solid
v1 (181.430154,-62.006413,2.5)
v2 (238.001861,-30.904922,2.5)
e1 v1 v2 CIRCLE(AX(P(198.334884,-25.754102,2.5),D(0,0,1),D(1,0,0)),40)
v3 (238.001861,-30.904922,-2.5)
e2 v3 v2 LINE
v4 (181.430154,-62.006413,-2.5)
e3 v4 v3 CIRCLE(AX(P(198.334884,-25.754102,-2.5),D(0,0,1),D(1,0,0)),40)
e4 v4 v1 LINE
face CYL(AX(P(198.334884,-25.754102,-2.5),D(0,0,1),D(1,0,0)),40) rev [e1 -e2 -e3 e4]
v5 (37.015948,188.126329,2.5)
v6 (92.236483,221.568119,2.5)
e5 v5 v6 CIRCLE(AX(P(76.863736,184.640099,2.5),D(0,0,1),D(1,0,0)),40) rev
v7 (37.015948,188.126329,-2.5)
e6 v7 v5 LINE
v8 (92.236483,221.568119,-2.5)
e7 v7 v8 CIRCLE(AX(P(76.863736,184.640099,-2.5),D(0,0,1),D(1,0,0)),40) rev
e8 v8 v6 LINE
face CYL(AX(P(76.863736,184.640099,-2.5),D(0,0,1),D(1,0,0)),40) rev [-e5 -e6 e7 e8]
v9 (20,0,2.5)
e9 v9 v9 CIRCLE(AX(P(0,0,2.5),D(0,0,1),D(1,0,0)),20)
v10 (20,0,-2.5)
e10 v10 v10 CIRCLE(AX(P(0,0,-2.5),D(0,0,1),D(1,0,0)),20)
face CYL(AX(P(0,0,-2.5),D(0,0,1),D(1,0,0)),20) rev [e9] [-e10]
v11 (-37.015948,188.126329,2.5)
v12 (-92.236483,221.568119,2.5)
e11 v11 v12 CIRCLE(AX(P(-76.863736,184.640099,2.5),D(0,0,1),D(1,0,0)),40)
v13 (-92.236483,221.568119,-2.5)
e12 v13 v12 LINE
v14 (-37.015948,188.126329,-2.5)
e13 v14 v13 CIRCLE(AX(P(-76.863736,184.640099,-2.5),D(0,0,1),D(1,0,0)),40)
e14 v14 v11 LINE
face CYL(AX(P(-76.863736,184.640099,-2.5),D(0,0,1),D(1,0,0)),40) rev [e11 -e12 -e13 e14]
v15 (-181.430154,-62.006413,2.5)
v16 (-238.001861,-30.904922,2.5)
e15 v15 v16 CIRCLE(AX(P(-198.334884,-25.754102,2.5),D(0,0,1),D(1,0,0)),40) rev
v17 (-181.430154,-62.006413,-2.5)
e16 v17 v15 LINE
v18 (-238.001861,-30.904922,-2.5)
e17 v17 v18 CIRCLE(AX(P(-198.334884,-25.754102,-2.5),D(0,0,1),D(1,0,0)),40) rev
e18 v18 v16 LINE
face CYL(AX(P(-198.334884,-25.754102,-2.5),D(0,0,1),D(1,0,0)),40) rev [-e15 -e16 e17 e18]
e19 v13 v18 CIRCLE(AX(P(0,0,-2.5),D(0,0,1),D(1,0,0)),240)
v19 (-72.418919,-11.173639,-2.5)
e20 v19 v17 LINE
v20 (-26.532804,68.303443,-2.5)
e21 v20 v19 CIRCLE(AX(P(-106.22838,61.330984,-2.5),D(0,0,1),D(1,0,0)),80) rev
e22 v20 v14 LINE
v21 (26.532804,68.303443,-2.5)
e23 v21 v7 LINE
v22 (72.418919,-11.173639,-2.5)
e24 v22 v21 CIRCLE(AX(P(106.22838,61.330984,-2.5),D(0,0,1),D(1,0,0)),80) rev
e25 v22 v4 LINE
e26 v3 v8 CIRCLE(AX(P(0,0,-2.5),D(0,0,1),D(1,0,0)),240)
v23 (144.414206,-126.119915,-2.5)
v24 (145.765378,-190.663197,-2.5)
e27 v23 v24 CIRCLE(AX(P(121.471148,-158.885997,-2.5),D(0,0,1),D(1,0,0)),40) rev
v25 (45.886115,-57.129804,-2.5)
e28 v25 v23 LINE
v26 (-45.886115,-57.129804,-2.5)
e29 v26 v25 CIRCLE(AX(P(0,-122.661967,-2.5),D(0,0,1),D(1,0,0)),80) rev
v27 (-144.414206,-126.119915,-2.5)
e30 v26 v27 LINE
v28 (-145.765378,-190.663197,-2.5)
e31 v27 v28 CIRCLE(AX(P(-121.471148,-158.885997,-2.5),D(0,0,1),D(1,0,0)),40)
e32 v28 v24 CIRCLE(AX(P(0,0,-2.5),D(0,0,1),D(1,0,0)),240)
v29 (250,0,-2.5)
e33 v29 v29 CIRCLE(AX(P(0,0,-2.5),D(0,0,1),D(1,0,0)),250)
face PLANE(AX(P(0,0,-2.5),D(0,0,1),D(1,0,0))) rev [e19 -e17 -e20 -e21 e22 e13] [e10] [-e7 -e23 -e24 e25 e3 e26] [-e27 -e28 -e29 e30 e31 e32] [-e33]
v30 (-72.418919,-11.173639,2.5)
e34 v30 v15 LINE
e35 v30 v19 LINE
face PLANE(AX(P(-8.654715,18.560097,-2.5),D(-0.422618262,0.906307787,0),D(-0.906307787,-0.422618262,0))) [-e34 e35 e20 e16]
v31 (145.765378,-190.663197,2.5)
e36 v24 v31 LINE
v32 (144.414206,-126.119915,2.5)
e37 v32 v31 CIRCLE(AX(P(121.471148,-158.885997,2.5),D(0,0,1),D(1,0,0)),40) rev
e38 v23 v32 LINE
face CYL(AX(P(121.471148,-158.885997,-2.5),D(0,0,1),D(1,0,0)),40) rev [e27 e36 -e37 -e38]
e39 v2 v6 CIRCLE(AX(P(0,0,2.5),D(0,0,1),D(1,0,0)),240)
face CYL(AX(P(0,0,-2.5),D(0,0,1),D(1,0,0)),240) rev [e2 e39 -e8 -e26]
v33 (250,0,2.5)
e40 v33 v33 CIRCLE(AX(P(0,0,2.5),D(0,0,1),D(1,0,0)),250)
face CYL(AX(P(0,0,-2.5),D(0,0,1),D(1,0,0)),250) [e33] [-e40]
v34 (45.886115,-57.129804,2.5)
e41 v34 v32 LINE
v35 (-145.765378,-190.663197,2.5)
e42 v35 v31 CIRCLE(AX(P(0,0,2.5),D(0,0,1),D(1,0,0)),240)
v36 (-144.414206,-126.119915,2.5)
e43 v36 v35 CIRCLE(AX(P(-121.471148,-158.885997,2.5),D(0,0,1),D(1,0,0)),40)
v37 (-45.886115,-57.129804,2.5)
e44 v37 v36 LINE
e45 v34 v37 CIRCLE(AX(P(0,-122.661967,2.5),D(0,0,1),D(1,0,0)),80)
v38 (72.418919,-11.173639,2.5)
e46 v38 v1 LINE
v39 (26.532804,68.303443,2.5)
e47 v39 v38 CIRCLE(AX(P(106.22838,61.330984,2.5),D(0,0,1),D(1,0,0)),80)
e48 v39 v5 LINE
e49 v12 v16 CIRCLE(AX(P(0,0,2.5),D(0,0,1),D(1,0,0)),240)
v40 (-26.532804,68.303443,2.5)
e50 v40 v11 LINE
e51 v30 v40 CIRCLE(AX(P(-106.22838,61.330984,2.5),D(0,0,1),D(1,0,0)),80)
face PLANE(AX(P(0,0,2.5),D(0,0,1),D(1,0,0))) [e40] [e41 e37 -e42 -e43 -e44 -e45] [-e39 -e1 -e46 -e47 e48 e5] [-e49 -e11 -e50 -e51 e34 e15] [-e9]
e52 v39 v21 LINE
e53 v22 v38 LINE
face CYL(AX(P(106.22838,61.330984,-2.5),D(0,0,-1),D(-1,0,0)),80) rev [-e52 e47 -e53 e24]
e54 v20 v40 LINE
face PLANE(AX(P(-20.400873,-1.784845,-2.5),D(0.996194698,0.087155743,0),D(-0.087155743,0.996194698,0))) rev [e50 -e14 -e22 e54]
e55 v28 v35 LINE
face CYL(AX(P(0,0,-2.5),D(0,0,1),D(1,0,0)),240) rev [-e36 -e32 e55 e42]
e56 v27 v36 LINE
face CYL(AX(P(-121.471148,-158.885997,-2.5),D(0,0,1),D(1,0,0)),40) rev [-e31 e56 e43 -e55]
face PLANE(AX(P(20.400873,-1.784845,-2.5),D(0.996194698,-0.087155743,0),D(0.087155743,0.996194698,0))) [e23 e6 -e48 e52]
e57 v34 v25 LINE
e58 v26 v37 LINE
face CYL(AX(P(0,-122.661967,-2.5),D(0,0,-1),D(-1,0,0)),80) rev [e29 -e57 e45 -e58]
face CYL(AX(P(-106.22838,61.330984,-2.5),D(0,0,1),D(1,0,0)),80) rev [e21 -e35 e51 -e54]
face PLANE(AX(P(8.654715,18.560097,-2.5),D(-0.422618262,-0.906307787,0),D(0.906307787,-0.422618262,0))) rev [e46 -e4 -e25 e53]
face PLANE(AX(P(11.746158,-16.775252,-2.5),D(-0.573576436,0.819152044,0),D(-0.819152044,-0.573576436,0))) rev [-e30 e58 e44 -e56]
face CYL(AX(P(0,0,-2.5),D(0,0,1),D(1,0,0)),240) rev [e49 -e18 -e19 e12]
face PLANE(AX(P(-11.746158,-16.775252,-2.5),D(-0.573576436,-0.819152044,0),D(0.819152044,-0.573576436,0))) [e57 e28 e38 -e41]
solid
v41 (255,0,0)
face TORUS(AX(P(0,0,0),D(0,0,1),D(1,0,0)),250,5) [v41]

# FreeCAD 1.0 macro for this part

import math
import FreeCAD as App
import Part
import Sketcher

V = App.Vector
Q = App.Units.Quantity


def edges_at(feature, points):
    """Names of the edges that pass closest to the given points."""
    edges = feature.Shape.Edges
    near = lambda p: min(range(len(edges)), key=lambda i: edges[i].distToShape(Part.Vertex(*p))[0])
    return sorted({f"Edge{near(p) + 1}" for p in points})

doc = App.newDocument("Part")
body = doc.addObject("PartDesign::Body", "Body")

# Sketch on XY plane
sketch1 = body.newObject("Sketcher::SketchObject", "Sketch")
sketch1.AttachmentSupport = (doc.getObject("XY_Plane"), [""])
sketch1.MapMode = "FlatFace"
sketch1.addGeometry(Part.LineSegment(V(0, -25, 0), V(144, -126, 0)), False)
sketch1.addGeometry(Part.ArcOfCircle(Part.Circle(V(121, -159, 0), V(0, 0, 1), 40), math.radians(-53), math.radians(55)), False)
sketch1.addGeometry(Part.ArcOfCircle(Part.Circle(V(0, 0, 0), V(0, 0, 1), 240), math.radians(-53), math.radians(-7)), False)
sketch1.addGeometry(Part.ArcOfCircle(Part.Circle(V(198, -26, 0), V(0, 0, 1), 40), math.radians(-115), math.radians(-7)), False)
sketch1.addGeometry(Part.LineSegment(V(181, -62, 0), V(22, 12, 0)), False)
sketch1.addGeometry(Part.LineSegment(V(22, 12, 0), V(37, 188, 0)), False)
sketch1.addGeometry(Part.ArcOfCircle(Part.Circle(V(77, 185, 0), V(0, 0, 1), 40), math.radians(67), math.radians(175)), False)
sketch1.addGeometry(Part.ArcOfCircle(Part.Circle(V(0, 0, 0), V(0, 0, 1), 240), math.radians(67), math.radians(113)), False)
sketch1.addGeometry(Part.ArcOfCircle(Part.Circle(V(-77, 185, 0), V(0, 0, 1), 40), math.radians(5), math.radians(113)), False)
sketch1.addGeometry(Part.LineSegment(V(-37, 188, 0), V(-22, 12, 0)), False)
sketch1.addGeometry(Part.LineSegment(V(-22, 12, 0), V(-181, -62, 0)), False)
sketch1.addGeometry(Part.ArcOfCircle(Part.Circle(V(-198, -26, 0), V(0, 0, 1), 40), math.radians(-173), math.radians(-65)), False)
sketch1.addGeometry(Part.ArcOfCircle(Part.Circle(V(0, 0, 0), V(0, 0, 1), 240), math.radians(-173), math.radians(-127)), False)
sketch1.addGeometry(Part.ArcOfCircle(Part.Circle(V(-121, -159, 0), V(0, 0, 1), 40), math.radians(125), math.radians(233)), False)
sketch1.addGeometry(Part.LineSegment(V(-144, -126, 0), V(0, -25, 0)), False)
sketch1.addGeometry(Part.Circle(V(0, 0, 0), V(0, 0, 1), 20), False)
sketch1.addConstraint(Sketcher.Constraint("Tangent", 0, 2, 1, 2))
sketch1.addConstraint(Sketcher.Constraint("Tangent", 1, 1, 2, 1))
sketch1.addConstraint(Sketcher.Constraint("Tangent", 2, 2, 3, 2))
sketch1.addConstraint(Sketcher.Constraint("Tangent", 3, 1, 4, 1))
sketch1.addConstraint(Sketcher.Constraint("Coincident", 4, 2, 5, 1))
sketch1.addConstraint(Sketcher.Constraint("Tangent", 5, 2, 6, 2))
sketch1.addConstraint(Sketcher.Constraint("Tangent", 6, 1, 7, 1))
sketch1.addConstraint(Sketcher.Constraint("Tangent", 7, 2, 8, 2))
sketch1.addConstraint(Sketcher.Constraint("Tangent", 8, 1, 9, 1))
sketch1.addConstraint(Sketcher.Constraint("Coincident", 9, 2, 10, 1))
sketch1.addConstraint(Sketcher.Constraint("Tangent", 10, 2, 11, 2))
sketch1.addConstraint(Sketcher.Constraint("Tangent", 11, 1, 12, 1))
sketch1.addConstraint(Sketcher.Constraint("Tangent", 12, 2, 13, 2))
sketch1.addConstraint(Sketcher.Constraint("Tangent", 13, 1, 14, 1))
sketch1.addConstraint(Sketcher.Constraint("Coincident", 14, 2, 0, 1))
sketch1.addConstraint(Sketcher.Constraint("Coincident", 2, 3, -1, 1))
sketch1.addConstraint(Sketcher.Constraint("Coincident", 7, 3, -1, 1))
sketch1.addConstraint(Sketcher.Constraint("Coincident", 12, 3, -1, 1))
sketch1.addConstraint(Sketcher.Constraint("Coincident", 15, 3, -1, 1))
sketch1.addConstraint(Sketcher.Constraint("Equal", 1, 3))
sketch1.addConstraint(Sketcher.Constraint("Equal", 3, 6))
sketch1.addConstraint(Sketcher.Constraint("Equal", 2, 7))
sketch1.addConstraint(Sketcher.Constraint("Equal", 6, 8))
sketch1.addConstraint(Sketcher.Constraint("Equal", 8, 11))
sketch1.addConstraint(Sketcher.Constraint("Equal", 7, 12))
sketch1.addConstraint(Sketcher.Constraint("Equal", 11, 13))
sketch1.addConstraint(Sketcher.Constraint("Symmetric", 5, 2, 8, 1, -2))
sketch1.addConstraint(Sketcher.Constraint("Symmetric", 3, 1, 10, 2, -2))
sketch1.addConstraint(Sketcher.Constraint("Symmetric", 0, 2, 13, 1, -2))
sketch1.addConstraint(Sketcher.Constraint("Equal", 0, 4))
sketch1.addConstraint(Sketcher.Constraint("Equal", 4, 5))
sketch1.addConstraint(Sketcher.Constraint("Diameter", 15, 40.0))
sketch1.addConstraint(Sketcher.Constraint("Radius", 1, 40.0))
sketch1.addConstraint(Sketcher.Constraint("Radius", 2, 240.0))
sketch1.addConstraint(Sketcher.Constraint("Angle", 0, Q("-35 deg")))
sketch1.addConstraint(Sketcher.Constraint("Angle", 4, Q("155 deg")))
sketch1.addConstraint(Sketcher.Constraint("Angle", 5, Q("85 deg")))
sketch1.addConstraint(Sketcher.Constraint("DistanceY", 14, 2, -1, 1, 25.0))
pad1 = body.newObject("PartDesign::Pad", "Pad")
pad1.Profile = sketch1
pad1.Type = "TwoLengths"
pad1.Length = 2.5
pad1.Length2 = 2.5

# Sketch on XY plane
sketch2 = body.newObject("Sketcher::SketchObject", "Sketch001")
sketch2.AttachmentSupport = (doc.getObject("XY_Plane"), [""])
sketch2.MapMode = "FlatFace"
sketch2.addGeometry(Part.Circle(V(0, 0, 0), V(0, 0, 1), 250), False)
sketch2.addGeometry(Part.Circle(V(0, 0, 0), V(0, 0, 1), 240), False)
sketch2.addConstraint(Sketcher.Constraint("Coincident", 0, 3, -1, 1))
sketch2.addConstraint(Sketcher.Constraint("Coincident", 1, 3, -1, 1))
sketch2.addConstraint(Sketcher.Constraint("Diameter", 0, 500.0))
sketch2.addConstraint(Sketcher.Constraint("Diameter", 1, 480.0))
pad2 = body.newObject("PartDesign::Pad", "Pad001")
pad2.Profile = sketch2
pad2.Type = "TwoLengths"
pad2.Length = 2.5
pad2.Length2 = 2.5
doc.recompute()

fillet = body.newObject("PartDesign::Fillet", "Fillet")
fillet.Base = (pad2, edges_at(pad2, [(-21.651, 12.5, 0)]))
fillet.Radius = 80
doc.recompute()

fillet2 = body.newObject("PartDesign::Fillet", "Fillet001")
fillet2.Base = (fillet, edges_at(fillet, [(21.651, 12.5, 0)]))
fillet2.Radius = 80
doc.recompute()

fillet3 = body.newObject("PartDesign::Fillet", "Fillet002")
fillet3.Base = (fillet2, edges_at(fillet2, [(0, -25, 0)]))
fillet3.Radius = 80
body2 = doc.addObject("PartDesign::Body", "Body001")

# Sketch on YZ plane
sketch3 = body2.newObject("Sketcher::SketchObject", "Sketch002")
sketch3.AttachmentSupport = (doc.getObject("YZ_Plane001"), [""])
sketch3.MapMode = "FlatFace"
sketch3.addGeometry(Part.Circle(V(250, 0, 0), V(0, 0, 1), 5), False)
sketch3.addConstraint(Sketcher.Constraint("PointOnObject", 0, 3, -1))
sketch3.addConstraint(Sketcher.Constraint("Diameter", 0, 10.0))
sketch3.addConstraint(Sketcher.Constraint("DistanceX", -1, 1, 0, 3, 250.0))
revolution = body2.newObject("PartDesign::Revolution", "Revolution")
revolution.Profile = sketch3
revolution.ReferenceAxis = (sketch3, ["V_Axis"])
revolution.Angle = 360

doc.recompute()
